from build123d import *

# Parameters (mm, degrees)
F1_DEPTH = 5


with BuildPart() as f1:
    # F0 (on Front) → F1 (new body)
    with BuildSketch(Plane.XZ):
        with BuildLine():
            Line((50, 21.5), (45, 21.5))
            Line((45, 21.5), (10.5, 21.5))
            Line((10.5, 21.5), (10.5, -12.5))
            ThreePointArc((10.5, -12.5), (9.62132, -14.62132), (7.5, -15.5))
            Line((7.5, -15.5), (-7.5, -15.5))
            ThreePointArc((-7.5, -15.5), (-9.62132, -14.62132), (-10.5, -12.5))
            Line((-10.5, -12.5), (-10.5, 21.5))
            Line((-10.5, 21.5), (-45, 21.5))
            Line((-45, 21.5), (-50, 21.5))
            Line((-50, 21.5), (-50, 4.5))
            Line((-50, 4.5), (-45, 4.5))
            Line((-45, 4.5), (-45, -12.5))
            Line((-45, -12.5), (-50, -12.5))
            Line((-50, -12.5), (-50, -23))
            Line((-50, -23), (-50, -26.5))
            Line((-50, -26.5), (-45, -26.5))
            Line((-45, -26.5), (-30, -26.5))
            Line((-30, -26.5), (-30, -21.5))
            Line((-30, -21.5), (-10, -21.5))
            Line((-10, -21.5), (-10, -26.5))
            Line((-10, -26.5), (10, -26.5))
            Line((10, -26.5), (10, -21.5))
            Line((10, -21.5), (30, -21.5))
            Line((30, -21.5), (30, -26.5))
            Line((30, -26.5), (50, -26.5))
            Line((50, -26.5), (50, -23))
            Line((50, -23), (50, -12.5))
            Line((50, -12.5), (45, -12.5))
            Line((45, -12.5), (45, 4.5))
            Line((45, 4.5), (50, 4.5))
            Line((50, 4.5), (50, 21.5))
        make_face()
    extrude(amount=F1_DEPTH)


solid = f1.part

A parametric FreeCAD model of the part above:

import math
import FreeCAD as App
import Part
import Sketcher

doc = App.newDocument("Part")
body = doc.addObject("PartDesign::Body", "Body")

sketch1 = doc.addObject("Sketcher::SketchObject", "Sketch")
body.addObject(sketch1)
sketch1.AttachmentSupport = (doc.XZ_Plane, [""])
sketch1.MapMode = "FlatFace"
sketch1.addGeometry(Part.LineSegment(App.Vector(50, 21.5, 0), App.Vector(10.5, 21.5, 0)), False)
sketch1.addGeometry(Part.LineSegment(App.Vector(10.5, 21.5, 0), App.Vector(10.5, -12.5, 0)), False)
sketch1.addGeometry(Part.ArcOfCircle(Part.Circle(App.Vector(7.5, -12.5, 0), App.Vector(0, 0, 1), 3), math.radians(-90), math.radians(0)), False)
sketch1.addGeometry(Part.LineSegment(App.Vector(7.5, -15.5, 0), App.Vector(-7.5, -15.5, 0)), False)
sketch1.addGeometry(Part.ArcOfCircle(Part.Circle(App.Vector(-7.5, -12.5, 0), App.Vector(0, 0, 1), 3), math.radians(-180), math.radians(-90)), False)
sketch1.addGeometry(Part.LineSegment(App.Vector(-10.5, -12.5, 0), App.Vector(-10.5, 21.5, 0)), False)
sketch1.addGeometry(Part.LineSegment(App.Vector(-10.5, 21.5, 0), App.Vector(-50, 21.5, 0)), False)
sketch1.addGeometry(Part.LineSegment(App.Vector(-50, 21.5, 0), App.Vector(-50, 4.5, 0)), False)
sketch1.addGeometry(Part.LineSegment(App.Vector(-50, 4.5, 0), App.Vector(-45, 4.5, 0)), False)
sketch1.addGeometry(Part.LineSegment(App.Vector(-45, 4.5, 0), App.Vector(-45, -12.5, 0)), False)
sketch1.addGeometry(Part.LineSegment(App.Vector(-45, -12.5, 0), App.Vector(-50, -12.5, 0)), False)
sketch1.addGeometry(Part.LineSegment(App.Vector(-50, -12.5, 0), App.Vector(-50, -26.5, 0)), False)
sketch1.addGeometry(Part.LineSegment(App.Vector(-50, -26.5, 0), App.Vector(-30, -26.5, 0)), False)
sketch1.addGeometry(Part.LineSegment(App.Vector(-30, -26.5, 0), App.Vector(-30, -21.5, 0)), False)
sketch1.addGeometry(Part.LineSegment(App.Vector(-30, -21.5, 0), App.Vector(-10, -21.5, 0)), False)
sketch1.addGeometry(Part.LineSegment(App.Vector(-10, -21.5, 0), App.Vector(-10, -26.5, 0)), False)
sketch1.addGeometry(Part.LineSegment(App.Vector(-10, -26.5, 0), App.Vector(10, -26.5, 0)), False)
sketch1.addGeometry(Part.LineSegment(App.Vector(10, -26.5, 0), App.Vector(10, -21.5, 0)), False)
sketch1.addGeometry(Part.LineSegment(App.Vector(10, -21.5, 0), App.Vector(30, -21.5, 0)), False)
sketch1.addGeometry(Part.LineSegment(App.Vector(30, -21.5, 0), App.Vector(30, -26.5, 0)), False)
sketch1.addGeometry(Part.LineSegment(App.Vector(30, -26.5, 0), App.Vector(50, -26.5, 0)), False)
sketch1.addGeometry(Part.LineSegment(App.Vector(50, -26.5, 0), App.Vector(50, -12.5, 0)), False)
sketch1.addGeometry(Part.LineSegment(App.Vector(50, -12.5, 0), App.Vector(45, -12.5, 0)), False)
sketch1.addGeometry(Part.LineSegment(App.Vector(45, -12.5, 0), App.Vector(45, 4.5, 0)), False)
sketch1.addGeometry(Part.LineSegment(App.Vector(45, 4.5, 0), App.Vector(50, 4.5, 0)), False)
sketch1.addGeometry(Part.LineSegment(App.Vector(50, 4.5, 0), App.Vector(50, 21.5, 0)), False)
sketch1.addConstraint(Sketcher.Constraint("Coincident", 0, 2, 1, 1))
sketch1.addConstraint(Sketcher.Constraint("Tangent", 1, 2, 2, 2))
sketch1.addConstraint(Sketcher.Constraint("Tangent", 2, 1, 3, 1))
sketch1.addConstraint(Sketcher.Constraint("Tangent", 3, 2, 4, 2))
sketch1.addConstraint(Sketcher.Constraint("Tangent", 4, 1, 5, 1))
sketch1.addConstraint(Sketcher.Constraint("Coincident", 5, 2, 6, 1))
sketch1.addConstraint(Sketcher.Constraint("Coincident", 6, 2, 7, 1))
sketch1.addConstraint(Sketcher.Constraint("Coincident", 7, 2, 8, 1))
sketch1.addConstraint(Sketcher.Constraint("Coincident", 8, 2, 9, 1))
sketch1.addConstraint(Sketcher.Constraint("Coincident", 9, 2, 10, 1))
sketch1.addConstraint(Sketcher.Constraint("Coincident", 10, 2, 11, 1))
sketch1.addConstraint(Sketcher.Constraint("Coincident", 11, 2, 12, 1))
sketch1.addConstraint(Sketcher.Constraint("Coincident", 12, 2, 13, 1))
sketch1.addConstraint(Sketcher.Constraint("Coincident", 13, 2, 14, 1))
sketch1.addConstraint(Sketcher.Constraint("Coincident", 14, 2, 15, 1))
sketch1.addConstraint(Sketcher.Constraint("Coincident", 15, 2, 16, 1))
sketch1.addConstraint(Sketcher.Constraint("Coincident", 16, 2, 17, 1))
sketch1.addConstraint(Sketcher.Constraint("Coincident", 17, 2, 18, 1))
sketch1.addConstraint(Sketcher.Constraint("Coincident", 18, 2, 19, 1))
sketch1.addConstraint(Sketcher.Constraint("Coincident", 19, 2, 20, 1))
sketch1.addConstraint(Sketcher.Constraint("Coincident", 20, 2, 21, 1))
sketch1.addConstraint(Sketcher.Constraint("Coincident", 21, 2, 22, 1))
sketch1.addConstraint(Sketcher.Constraint("Coincident", 22, 2, 23, 1))
sketch1.addConstraint(Sketcher.Constraint("Coincident", 23, 2, 24, 1))
sketch1.addConstraint(Sketcher.Constraint("Coincident", 24, 2, 25, 1))
sketch1.addConstraint(Sketcher.Constraint("Coincident", 25, 2, 0, 1))
sketch1.addConstraint(Sketcher.Constraint("Horizontal", 0))
sketch1.addConstraint(Sketcher.Constraint("Vertical", 1))
sketch1.addConstraint(Sketcher.Constraint("Horizontal", 3))
sketch1.addConstraint(Sketcher.Constraint("Vertical", 5))
sketch1.addConstraint(Sketcher.Constraint("Horizontal", 6))
sketch1.addConstraint(Sketcher.Constraint("Vertical", 7))
sketch1.addConstraint(Sketcher.Constraint("Horizontal", 8))
sketch1.addConstraint(Sketcher.Constraint("Vertical", 9))
sketch1.addConstraint(Sketcher.Constraint("Horizontal", 10))
sketch1.addConstraint(Sketcher.Constraint("Vertical", 11))
sketch1.addConstraint(Sketcher.Constraint("Horizontal", 12))
sketch1.addConstraint(Sketcher.Constraint("Vertical", 13))
sketch1.addConstraint(Sketcher.Constraint("Horizontal", 14))
sketch1.addConstraint(Sketcher.Constraint("Vertical", 15))
sketch1.addConstraint(Sketcher.Constraint("Horizontal", 16))
sketch1.addConstraint(Sketcher.Constraint("Vertical", 17))
sketch1.addConstraint(Sketcher.Constraint("Horizontal", 18))
sketch1.addConstraint(Sketcher.Constraint("Vertical", 19))
sketch1.addConstraint(Sketcher.Constraint("Horizontal", 20))
sketch1.addConstraint(Sketcher.Constraint("Vertical", 21))
sketch1.addConstraint(Sketcher.Constraint("Horizontal", 22))
sketch1.addConstraint(Sketcher.Constraint("Vertical", 23))
sketch1.addConstraint(Sketcher.Constraint("Horizontal", 24))
sketch1.addConstraint(Sketcher.Constraint("Vertical", 25))
sketch1.addConstraint(Sketcher.Constraint("Equal", 2, 4))
sketch1.addConstraint(Sketcher.Constraint("Symmetric", 0, 2, 5, 2, -2))
sketch1.addConstraint(Sketcher.Constraint("Symmetric", 14, 2, 17, 2, -2))
sketch1.addConstraint(Sketcher.Constraint("Symmetric", 12, 2, 19, 2, -2))
sketch1.addConstraint(Sketcher.Constraint("Symmetric", 10, 2, 21, 2, -2))
sketch1.addConstraint(Sketcher.Constraint("Symmetric", 8, 2, 23, 2, -2))
sketch1.addConstraint(Sketcher.Constraint("Horizontal", 4, 1, 9, 2))
sketch1.addConstraint(Sketcher.Constraint("Horizontal", 12, 2, 15, 2))
sketch1.addConstraint(Sketcher.Constraint("Vertical", 7, 2, 10, 2))
sketch1.addConstraint(Sketcher.Constraint("Vertical", 21, 2, 24, 2))
sketch1.addConstraint(Sketcher.Constraint("Equal", 12, 14))
sketch1.addConstraint(Sketcher.Constraint("Equal", 14, 16))
sketch1.addConstraint(Sketcher.Constraint("Equal", 7, 9))
sketch1.addConstraint(Sketcher.Constraint("Equal", 24, 13))
sketch1.addConstraint(Sketcher.Constraint("Radius", 2, 3.000001))
sketch1.addConstraint(Sketcher.Constraint("DistanceX", 3, 2, 3, 1, 15.0))
sketch1.addConstraint(Sketcher.Constraint("DistanceX", 8, 1, 8, 2, 5.0))
sketch1.addConstraint(Sketcher.Constraint("DistanceX", 12, 1, 12, 2, 20.0))
sketch1.addConstraint(Sketcher.Constraint("DistanceY", 1, 2, 1, 1, 34.0))
sketch1.addConstraint(Sketcher.Constraint("DistanceY", 11, 2, 11, 1, 14.0))
sketch1.addConstraint(Sketcher.Constraint("DistanceY", 2, 3, -1, 1, 12.499999))
pad1 = doc.addObject("PartDesign::Pad", "Pad")
body.addObject(pad1)
pad1.Profile = sketch1
pad1.Length = 5

doc.recompute()
